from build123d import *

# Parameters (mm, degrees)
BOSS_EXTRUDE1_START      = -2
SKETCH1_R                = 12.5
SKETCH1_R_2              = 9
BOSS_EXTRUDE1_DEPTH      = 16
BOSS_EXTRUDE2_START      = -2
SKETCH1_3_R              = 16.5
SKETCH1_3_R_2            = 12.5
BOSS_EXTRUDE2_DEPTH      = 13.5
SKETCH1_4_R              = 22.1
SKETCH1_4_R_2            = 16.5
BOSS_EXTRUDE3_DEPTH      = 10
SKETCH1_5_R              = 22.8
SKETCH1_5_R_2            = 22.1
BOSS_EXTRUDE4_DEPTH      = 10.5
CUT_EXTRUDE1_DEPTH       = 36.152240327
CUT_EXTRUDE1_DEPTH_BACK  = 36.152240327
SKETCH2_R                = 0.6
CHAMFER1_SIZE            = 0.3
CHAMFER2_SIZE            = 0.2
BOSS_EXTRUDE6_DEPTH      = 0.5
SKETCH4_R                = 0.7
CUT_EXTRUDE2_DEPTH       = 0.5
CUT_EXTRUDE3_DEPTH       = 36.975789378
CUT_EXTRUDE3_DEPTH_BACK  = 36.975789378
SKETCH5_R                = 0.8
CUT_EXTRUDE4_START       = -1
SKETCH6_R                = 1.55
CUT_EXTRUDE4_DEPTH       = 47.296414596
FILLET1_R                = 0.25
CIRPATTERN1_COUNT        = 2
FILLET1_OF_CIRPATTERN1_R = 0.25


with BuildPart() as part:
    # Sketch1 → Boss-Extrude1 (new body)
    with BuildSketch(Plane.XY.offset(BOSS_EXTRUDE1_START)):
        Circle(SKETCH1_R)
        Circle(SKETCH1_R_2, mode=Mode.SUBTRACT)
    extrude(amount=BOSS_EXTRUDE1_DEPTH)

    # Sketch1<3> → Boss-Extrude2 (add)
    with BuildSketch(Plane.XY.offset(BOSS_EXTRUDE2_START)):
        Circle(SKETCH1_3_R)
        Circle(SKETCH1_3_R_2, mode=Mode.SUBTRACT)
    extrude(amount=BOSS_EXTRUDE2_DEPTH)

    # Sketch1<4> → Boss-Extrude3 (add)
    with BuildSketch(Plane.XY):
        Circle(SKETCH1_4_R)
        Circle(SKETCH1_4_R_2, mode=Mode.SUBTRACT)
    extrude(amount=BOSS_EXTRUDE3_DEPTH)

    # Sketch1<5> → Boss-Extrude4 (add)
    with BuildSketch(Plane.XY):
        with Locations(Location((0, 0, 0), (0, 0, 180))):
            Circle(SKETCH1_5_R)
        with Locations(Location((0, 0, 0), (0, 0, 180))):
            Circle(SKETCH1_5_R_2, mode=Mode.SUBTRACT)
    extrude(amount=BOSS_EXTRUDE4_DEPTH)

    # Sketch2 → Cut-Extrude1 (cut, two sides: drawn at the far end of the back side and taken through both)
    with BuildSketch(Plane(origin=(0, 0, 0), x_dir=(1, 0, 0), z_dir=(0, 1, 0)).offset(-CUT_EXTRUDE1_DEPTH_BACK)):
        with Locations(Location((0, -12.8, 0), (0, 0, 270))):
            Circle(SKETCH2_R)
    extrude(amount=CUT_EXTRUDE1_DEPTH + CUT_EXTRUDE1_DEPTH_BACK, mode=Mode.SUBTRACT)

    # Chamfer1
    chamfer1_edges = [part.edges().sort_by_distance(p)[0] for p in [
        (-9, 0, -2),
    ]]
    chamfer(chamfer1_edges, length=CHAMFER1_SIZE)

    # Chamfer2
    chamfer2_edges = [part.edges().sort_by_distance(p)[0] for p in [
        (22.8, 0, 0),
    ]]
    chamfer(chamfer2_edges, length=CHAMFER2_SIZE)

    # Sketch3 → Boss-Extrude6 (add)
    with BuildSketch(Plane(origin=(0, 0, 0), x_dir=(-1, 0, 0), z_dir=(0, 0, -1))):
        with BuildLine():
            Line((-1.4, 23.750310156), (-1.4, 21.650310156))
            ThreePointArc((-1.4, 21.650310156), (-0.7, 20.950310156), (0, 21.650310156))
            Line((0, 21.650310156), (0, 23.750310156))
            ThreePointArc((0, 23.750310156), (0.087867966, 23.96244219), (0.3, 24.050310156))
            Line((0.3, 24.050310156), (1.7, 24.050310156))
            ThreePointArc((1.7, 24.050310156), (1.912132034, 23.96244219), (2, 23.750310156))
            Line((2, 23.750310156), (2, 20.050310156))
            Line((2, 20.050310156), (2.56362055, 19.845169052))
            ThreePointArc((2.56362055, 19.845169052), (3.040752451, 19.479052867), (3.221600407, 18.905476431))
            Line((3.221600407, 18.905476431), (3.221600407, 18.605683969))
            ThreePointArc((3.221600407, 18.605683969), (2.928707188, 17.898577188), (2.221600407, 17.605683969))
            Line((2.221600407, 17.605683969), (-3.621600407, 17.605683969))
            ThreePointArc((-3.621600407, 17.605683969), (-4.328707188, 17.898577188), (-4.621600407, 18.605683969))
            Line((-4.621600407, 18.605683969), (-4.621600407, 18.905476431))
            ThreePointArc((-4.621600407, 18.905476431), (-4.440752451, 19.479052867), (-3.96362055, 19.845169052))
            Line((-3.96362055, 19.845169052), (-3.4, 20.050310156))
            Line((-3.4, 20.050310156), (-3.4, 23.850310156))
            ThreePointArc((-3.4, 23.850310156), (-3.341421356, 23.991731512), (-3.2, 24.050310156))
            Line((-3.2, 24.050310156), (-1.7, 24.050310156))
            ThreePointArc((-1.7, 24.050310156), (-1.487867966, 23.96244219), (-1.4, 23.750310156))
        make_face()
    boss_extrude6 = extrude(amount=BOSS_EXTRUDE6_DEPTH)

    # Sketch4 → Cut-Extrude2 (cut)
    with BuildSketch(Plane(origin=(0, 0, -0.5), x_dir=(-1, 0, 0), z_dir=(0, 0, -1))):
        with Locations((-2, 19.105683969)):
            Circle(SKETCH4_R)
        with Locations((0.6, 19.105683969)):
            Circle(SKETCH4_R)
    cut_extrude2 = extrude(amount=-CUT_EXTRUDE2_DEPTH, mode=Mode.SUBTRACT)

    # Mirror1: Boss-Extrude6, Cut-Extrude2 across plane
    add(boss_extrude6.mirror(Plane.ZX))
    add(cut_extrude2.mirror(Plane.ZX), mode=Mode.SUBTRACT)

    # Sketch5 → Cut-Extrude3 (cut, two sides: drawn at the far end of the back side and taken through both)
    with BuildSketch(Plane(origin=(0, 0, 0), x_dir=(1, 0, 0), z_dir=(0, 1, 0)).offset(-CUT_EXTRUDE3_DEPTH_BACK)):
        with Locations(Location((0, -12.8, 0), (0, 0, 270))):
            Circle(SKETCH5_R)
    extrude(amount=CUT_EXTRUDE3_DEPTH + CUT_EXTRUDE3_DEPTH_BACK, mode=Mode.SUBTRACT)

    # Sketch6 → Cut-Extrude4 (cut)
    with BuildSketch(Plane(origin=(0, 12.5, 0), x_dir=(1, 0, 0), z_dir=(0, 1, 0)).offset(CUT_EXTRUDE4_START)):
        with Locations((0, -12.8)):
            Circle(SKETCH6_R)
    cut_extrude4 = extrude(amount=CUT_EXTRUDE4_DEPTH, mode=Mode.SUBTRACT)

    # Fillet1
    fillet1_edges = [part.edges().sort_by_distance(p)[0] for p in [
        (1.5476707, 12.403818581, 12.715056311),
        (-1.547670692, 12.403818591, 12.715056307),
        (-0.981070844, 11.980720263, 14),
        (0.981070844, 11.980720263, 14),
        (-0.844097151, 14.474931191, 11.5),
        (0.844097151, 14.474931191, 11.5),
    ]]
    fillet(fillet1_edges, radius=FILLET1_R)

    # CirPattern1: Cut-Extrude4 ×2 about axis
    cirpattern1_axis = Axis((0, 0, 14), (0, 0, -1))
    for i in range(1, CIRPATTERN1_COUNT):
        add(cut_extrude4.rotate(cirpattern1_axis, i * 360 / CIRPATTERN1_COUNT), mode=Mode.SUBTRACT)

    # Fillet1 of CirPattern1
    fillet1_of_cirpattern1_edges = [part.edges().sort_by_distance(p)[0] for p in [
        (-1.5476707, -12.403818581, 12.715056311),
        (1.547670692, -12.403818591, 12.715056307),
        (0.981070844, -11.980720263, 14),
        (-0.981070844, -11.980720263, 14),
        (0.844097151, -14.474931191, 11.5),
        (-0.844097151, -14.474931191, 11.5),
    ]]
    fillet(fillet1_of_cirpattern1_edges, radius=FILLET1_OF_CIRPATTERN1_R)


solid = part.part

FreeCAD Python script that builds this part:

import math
import FreeCAD as App
import Part
import Sketcher

V = App.Vector
Q = App.Units.Quantity


def edges_at(feature, points):
    """Names of the edges that pass closest to the given points."""
    edges = feature.Shape.Edges
    near = lambda p: min(range(len(edges)), key=lambda i: edges[i].distToShape(Part.Vertex(*p))[0])
    return sorted({f"Edge{near(p) + 1}" for p in points})

doc = App.newDocument("Part")
body = doc.addObject("PartDesign::Body", "Body")

# Sketch on XY plane
sketch1 = doc.addObject("Sketcher::SketchObject", "Sketch")
body.addObject(sketch1)
sketch1.AttachmentSupport = (doc.XY_Plane, [""])
sketch1.MapMode = "FlatFace"
sketch1.AttachmentOffset = App.Placement(V(0, 0, -2), App.Rotation())
sketch1.addGeometry(Part.Circle(V(0, 0, 0), V(0, 0, 1), 12.5), False)
sketch1.addGeometry(Part.Circle(V(0, 0, 0), V(0, 0, 1), 9), False)
sketch1.addConstraint(Sketcher.Constraint("Coincident", 0, 3, -1, 1))
sketch1.addConstraint(Sketcher.Constraint("Coincident", 1, 3, -1, 1))
sketch1.addConstraint(Sketcher.Constraint("Diameter", 0, 25.0))
sketch1.addConstraint(Sketcher.Constraint("Diameter", 1, 18.0))
pad1 = doc.addObject("PartDesign::Pad", "Pad")
body.addObject(pad1)
pad1.Profile = sketch1
pad1.Length = 16

# Sketch on XY plane
sketch2 = doc.addObject("Sketcher::SketchObject", "Sketch001")
body.addObject(sketch2)
sketch2.AttachmentSupport = (doc.XY_Plane, [""])
sketch2.MapMode = "FlatFace"
sketch2.AttachmentOffset = App.Placement(V(0, 0, -2), App.Rotation())
sketch2.addGeometry(Part.Circle(V(0, 0, 0), V(0, 0, 1), 16.5), False)
sketch2.addGeometry(Part.Circle(V(0, 0, 0), V(0, 0, 1), 12.5), False)
sketch2.addConstraint(Sketcher.Constraint("Coincident", 0, 3, -1, 1))
sketch2.addConstraint(Sketcher.Constraint("Coincident", 1, 3, -1, 1))
sketch2.addConstraint(Sketcher.Constraint("Diameter", 0, 33.0))
sketch2.addConstraint(Sketcher.Constraint("Diameter", 1, 25.0))
pad2 = doc.addObject("PartDesign::Pad", "Pad001")
body.addObject(pad2)
pad2.Profile = sketch2
pad2.Length = 13.5

# Sketch on XY plane
sketch3 = doc.addObject("Sketcher::SketchObject", "Sketch002")
body.addObject(sketch3)
sketch3.AttachmentSupport = (doc.XY_Plane, [""])
sketch3.MapMode = "FlatFace"
sketch3.addGeometry(Part.Circle(V(0, 0, 0), V(0, 0, 1), 22.1), False)
sketch3.addGeometry(Part.Circle(V(0, 0, 0), V(0, 0, 1), 16.5), False)
sketch3.addConstraint(Sketcher.Constraint("Coincident", 0, 3, -1, 1))
sketch3.addConstraint(Sketcher.Constraint("Coincident", 1, 3, -1, 1))
sketch3.addConstraint(Sketcher.Constraint("Diameter", 1, 33.0))
sketch3.addConstraint(Sketcher.Constraint("Diameter", 0, 44.2))
pad3 = doc.addObject("PartDesign::Pad", "Pad002")
body.addObject(pad3)
pad3.Profile = sketch3
pad3.Length = 10

# Sketch on XY plane
sketch4 = doc.addObject("Sketcher::SketchObject", "Sketch003")
body.addObject(sketch4)
sketch4.AttachmentSupport = (doc.XY_Plane, [""])
sketch4.MapMode = "FlatFace"
sketch4.addGeometry(Part.Circle(V(0, 0, 0), V(0, 0, 1), 22.8), False)
sketch4.addGeometry(Part.Circle(V(0, 0, 0), V(0, 0, 1), 22.1), False)
sketch4.addConstraint(Sketcher.Constraint("Coincident", 0, 3, -1, 1))
sketch4.addConstraint(Sketcher.Constraint("Coincident", 1, 3, -1, 1))
sketch4.addConstraint(Sketcher.Constraint("Diameter", 0, 45.6))
sketch4.addConstraint(Sketcher.Constraint("Diameter", 1, 44.2))
pad4 = doc.addObject("PartDesign::Pad", "Pad003")
body.addObject(pad4)
pad4.Profile = sketch4
pad4.Length = 10.5

# Sketch on XZ plane
sketch5 = doc.addObject("Sketcher::SketchObject", "Sketch004")
body.addObject(sketch5)
sketch5.AttachmentSupport = (doc.XZ_Plane, [""])
sketch5.MapMode = "FlatFace"
sketch5.addGeometry(Part.Circle(V(0, 12.8, 0), V(0, 0, 1), 0.6), False)
sketch5.addConstraint(Sketcher.Constraint("PointOnObject", 0, 3, -2))
sketch5.addConstraint(Sketcher.Constraint("Diameter", 0, 1.2))
sketch5.addConstraint(Sketcher.Constraint("DistanceY", -1, 1, 0, 3, 12.8))
pocket1 = doc.addObject("PartDesign::Pocket", "Pocket")
body.addObject(pocket1)
pocket1.Profile = sketch5
pocket1.Type = "ThroughAll"
pocket1.Midplane = True
doc.recompute()

chamfer = doc.addObject("PartDesign::Chamfer", "Chamfer")
body.addObject(chamfer)
chamfer.Base = (pocket1, edges_at(pocket1, [(-9, 0, -2)]))
chamfer.Size = 0.3
doc.recompute()

chamfer2 = doc.addObject("PartDesign::Chamfer", "Chamfer001")
body.addObject(chamfer2)
chamfer2.Base = (chamfer, edges_at(chamfer, [(22.8, 0, 0)]))
chamfer2.Size = 0.2

# Sketch on XY plane
sketch6 = doc.addObject("Sketcher::SketchObject", "Sketch005")
body.addObject(sketch6)
sketch6.AttachmentSupport = (doc.XY_Plane, [""])
sketch6.MapMode = "FlatFace"
sketch6.addGeometry(Part.LineSegment(V(1.4, 21.65031, 0), V(1.4, 23.75031, 0)), False)
sketch6.addGeometry(Part.ArcOfCircle(Part.Circle(V(1.7, 23.75031, 0), V(0, 0, 1), 0.3), math.radians(90), math.radians(180)), False)
sketch6.addGeometry(Part.LineSegment(V(1.7, 24.05031, 0), V(3.2, 24.05031, 0)), False)
sketch6.addGeometry(Part.ArcOfCircle(Part.Circle(V(3.2, 23.85031, 0), V(0, 0, 1), 0.2), math.radians(0), math.radians(90)), False)
sketch6.addGeometry(Part.LineSegment(V(3.4, 23.85031, 0), V(3.4, 20.05031, 0)), False)
sketch6.addGeometry(Part.LineSegment(V(3.4, 20.05031, 0), V(3.963621, 19.845169, 0)), False)
sketch6.addGeometry(Part.ArcOfCircle(Part.Circle(V(3.6216, 18.905476, 0), V(0, 0, 1), 1), math.radians(0), math.radians(70)), False)
sketch6.addGeometry(Part.LineSegment(V(4.6216, 18.905476, 0), V(4.6216, 18.605684, 0)), False)
sketch6.addGeometry(Part.ArcOfCircle(Part.Circle(V(3.6216, 18.605684, 0), V(0, 0, 1), 1), math.radians(-90), math.radians(0)), False)
sketch6.addGeometry(Part.LineSegment(V(3.6216, 17.605684, 0), V(-2.2216, 17.605684, 0)), False)
sketch6.addGeometry(Part.ArcOfCircle(Part.Circle(V(-2.2216, 18.605684, 0), V(0, 0, 1), 1), math.radians(-180), math.radians(-90)), False)
sketch6.addGeometry(Part.LineSegment(V(-3.2216, 18.605684, 0), V(-3.2216, 18.905476, 0)), False)
sketch6.addGeometry(Part.ArcOfCircle(Part.Circle(V(-2.2216, 18.905476, 0), V(0, 0, 1), 1), math.radians(110), math.radians(180)), False)
sketch6.addGeometry(Part.LineSegment(V(-2.563621, 19.845169, 0), V(-2, 20.05031, 0)), False)
sketch6.addGeometry(Part.LineSegment(V(-2, 20.05031, 0), V(-2, 23.75031, 0)), False)
sketch6.addGeometry(Part.ArcOfCircle(Part.Circle(V(-1.7, 23.75031, 0), V(0, 0, 1), 0.3), math.radians(90), math.radians(180)), False)
sketch6.addGeometry(Part.LineSegment(V(-1.7, 24.05031, 0), V(-0.3, 24.05031, 0)), False)
sketch6.addGeometry(Part.ArcOfCircle(Part.Circle(V(-0.3, 23.75031, 0), V(0, 0, 1), 0.3), math.radians(0), math.radians(90)), False)
sketch6.addGeometry(Part.LineSegment(V(0, 23.75031, 0), V(0, 21.65031, 0)), False)
sketch6.addGeometry(Part.ArcOfCircle(Part.Circle(V(0.7, 21.65031, 0), V(0, 0, 1), 0.7), math.radians(180), math.radians(360)), False)
sketch6.addConstraint(Sketcher.Constraint("Tangent", 0, 2, 1, 2))
sketch6.addConstraint(Sketcher.Constraint("Tangent", 1, 1, 2, 1))
sketch6.addConstraint(Sketcher.Constraint("Tangent", 2, 2, 3, 2))
sketch6.addConstraint(Sketcher.Constraint("Tangent", 3, 1, 4, 1))
sketch6.addConstraint(Sketcher.Constraint("Coincident", 4, 2, 5, 1))
sketch6.addConstraint(Sketcher.Constraint("Tangent", 5, 2, 6, 2))
sketch6.addConstraint(Sketcher.Constraint("Tangent", 6, 1, 7, 1))
sketch6.addConstraint(Sketcher.Constraint("Tangent", 7, 2, 8, 2))
sketch6.addConstraint(Sketcher.Constraint("Tangent", 8, 1, 9, 1))
sketch6.addConstraint(Sketcher.Constraint("Tangent", 9, 2, 10, 2))
sketch6.addConstraint(Sketcher.Constraint("Tangent", 10, 1, 11, 1))
sketch6.addConstraint(Sketcher.Constraint("Tangent", 11, 2, 12, 2))
sketch6.addConstraint(Sketcher.Constraint("Tangent", 12, 1, 13, 1))
sketch6.addConstraint(Sketcher.Constraint("Coincident", 13, 2, 14, 1))
sketch6.addConstraint(Sketcher.Constraint("Tangent", 14, 2, 15, 2))
sketch6.addConstraint(Sketcher.Constraint("Tangent", 15, 1, 16, 1))
sketch6.addConstraint(Sketcher.Constraint("Tangent", 16, 2, 17, 2))
sketch6.addConstraint(Sketcher.Constraint("Tangent", 17, 1, 18, 1))
sketch6.addConstraint(Sketcher.Constraint("Tangent", 18, 2, 19, 1))
sketch6.addConstraint(Sketcher.Constraint("Tangent", 19, 2, 0, 1))
sketch6.addConstraint(Sketcher.Constraint("Vertical", 0))
sketch6.addConstraint(Sketcher.Constraint("Horizontal", 2))
sketch6.addConstraint(Sketcher.Constraint("Vertical", 4))
sketch6.addConstraint(Sketcher.Constraint("Vertical", 7))
sketch6.addConstraint(Sketcher.Constraint("Horizontal", 9))
sketch6.addConstraint(Sketcher.Constraint("Vertical", 11))
sketch6.addConstraint(Sketcher.Constraint("Vertical", 14))
sketch6.addConstraint(Sketcher.Constraint("Horizontal", 16))
sketch6.addConstraint(Sketcher.Constraint("Vertical", 18))
sketch6.addConstraint(Sketcher.Constraint("Equal", 6, 8))
sketch6.addConstraint(Sketcher.Constraint("Equal", 8, 10))
sketch6.addConstraint(Sketcher.Constraint("Equal", 10, 12))
sketch6.addConstraint(Sketcher.Constraint("Equal", 1, 15))
sketch6.addConstraint(Sketcher.Constraint("Equal", 15, 17))
sketch6.addConstraint(Sketcher.Constraint("Symmetric", 1, 3, 15, 3, -2))
sketch6.addConstraint(Sketcher.Constraint("PointOnObject", 17, 1, -2))
sketch6.addConstraint(Sketcher.Constraint("Horizontal", 6, 3, 12, 3))
sketch6.addConstraint(Sketcher.Constraint("Horizontal", 5, 2, 12, 1))
sketch6.addConstraint(Sketcher.Constraint("Horizontal", 4, 2, 13, 2))
sketch6.addConstraint(Sketcher.Constraint("Radius", 6, 1.0))
sketch6.addConstraint(Sketcher.Constraint("Radius", 1, 0.3))
sketch6.addConstraint(Sketcher.Constraint("Radius", 3, 0.2))
sketch6.addConstraint(Sketcher.Constraint("Radius", 19, 0.7))
sketch6.addConstraint(Sketcher.Constraint("Angle", 5, Q("-20 deg")))
sketch6.addConstraint(Sketcher.Constraint("DistanceX", 2, 1, 2, 2, 1.5))
sketch6.addConstraint(Sketcher.Constraint("DistanceY", 0, 1, 0, 2, 2.1))
sketch6.addConstraint(Sketcher.Constraint("DistanceY", 4, 2, 4, 1, 3.8))
sketch6.addConstraint(Sketcher.Constraint("DistanceX", 9, 2, 9, 1, 5.843201))
sketch6.addConstraint(Sketcher.Constraint("DistanceY", 7, 2, 7, 1, 0.299792))
sketch6.addConstraint(Sketcher.Constraint("DistanceY", -1, 1, 1, 3, 23.75031))
pad5 = doc.addObject("PartDesign::Pad", "Pad004")
body.addObject(pad5)
pad5.Profile = sketch6
pad5.Length = 0.5
pad5.Reversed = True

# Sketch on XY plane
sketch7 = doc.addObject("Sketcher::SketchObject", "Sketch006")
body.addObject(sketch7)
sketch7.AttachmentSupport = (doc.XY_Plane, [""])
sketch7.MapMode = "FlatFace"
sketch7.AttachmentOffset = App.Placement(V(0, 0, -0.5), App.Rotation())
sketch7.addGeometry(Part.Circle(V(2, 19.105684, 0), V(0, 0, 1), 0.7), False)
sketch7.addGeometry(Part.Circle(V(-0.6, 19.105684, 0), V(0, 0, 1), 0.7), False)
sketch7.addConstraint(Sketcher.Constraint("Equal", 0, 1))
sketch7.addConstraint(Sketcher.Constraint("Horizontal", 0, 3, 1, 3))
sketch7.addConstraint(Sketcher.Constraint("Diameter", 0, 1.4))
sketch7.addConstraint(Sketcher.Constraint("DistanceX", -1, 1, 0, 3, 2.0))
sketch7.addConstraint(Sketcher.Constraint("DistanceX", 1, 3, -1, 1, 0.6))
sketch7.addConstraint(Sketcher.Constraint("DistanceY", -1, 1, 0, 3, 19.105684))
pocket2 = doc.addObject("PartDesign::Pocket", "Pocket001")
body.addObject(pocket2)
pocket2.Profile = sketch7
pocket2.Length = 0.5
pocket2.Reversed = True
doc.recompute()

mirrored = doc.addObject("PartDesign::Mirrored", "Mirrored")
body.addObject(mirrored)
mirrored.Originals = [pad5, pocket2]
mirrored.MirrorPlane = (doc.XZ_Plane, [""])
body.Tip = mirrored

# Sketch on XZ plane
sketch8 = doc.addObject("Sketcher::SketchObject", "Sketch007")
body.addObject(sketch8)
sketch8.AttachmentSupport = (doc.XZ_Plane, [""])
sketch8.MapMode = "FlatFace"
sketch8.addGeometry(Part.Circle(V(0, 12.8, 0), V(0, 0, 1), 0.8), False)
sketch8.addConstraint(Sketcher.Constraint("PointOnObject", 0, 3, -2))
sketch8.addConstraint(Sketcher.Constraint("Diameter", 0, 1.6))
sketch8.addConstraint(Sketcher.Constraint("DistanceY", -1, 1, 0, 3, 12.8))
pocket3 = doc.addObject("PartDesign::Pocket", "Pocket002")
body.addObject(pocket3)
pocket3.Profile = sketch8
pocket3.Type = "ThroughAll"
pocket3.Midplane = True

# Sketch on XZ plane
sketch9 = doc.addObject("Sketcher::SketchObject", "Sketch008")
body.addObject(sketch9)
sketch9.AttachmentSupport = (doc.XZ_Plane, [""])
sketch9.MapMode = "FlatFace"
sketch9.AttachmentOffset = App.Placement(V(0, 0, -11.5), App.Rotation())
sketch9.addGeometry(Part.Circle(V(0, 12.8, 0), V(0, 0, 1), 1.55), False)
sketch9.addConstraint(Sketcher.Constraint("PointOnObject", 0, 3, -2))
sketch9.addConstraint(Sketcher.Constraint("Diameter", 0, 3.1))
sketch9.addConstraint(Sketcher.Constraint("DistanceY", -1, 1, 0, 3, 12.8))
pocket4 = doc.addObject("PartDesign::Pocket", "Pocket003")
body.addObject(pocket4)
pocket4.Profile = sketch9
pocket4.Length = 47.296415
doc.recompute()

fillet = doc.addObject("PartDesign::Fillet", "Fillet")
body.addObject(fillet)
fillet.Base = (pocket4, edges_at(pocket4, [
    (1.548, 12.404, 12.715),
    (-1.548, 12.404, 12.715),
    (-0.981, 11.981, 14),
    (0.981, 11.981, 14),
    (-0.844, 14.475, 11.5),
    (0.844, 14.475, 11.5),
]))
fillet.Radius = 0.25
doc.recompute()

polarpattern = doc.addObject("PartDesign::PolarPattern", "PolarPattern")
body.addObject(polarpattern)
polarpattern.Originals = [pocket4]
polarpattern.Axis = (doc.Z_Axis, [""])
polarpattern.Angle = 360
polarpattern.Occurrences = 2
body.Tip = polarpattern
doc.recompute()

fillet2 = doc.addObject("PartDesign::Fillet", "Fillet001")
body.addObject(fillet2)
fillet2.Base = (polarpattern, edges_at(polarpattern, [
    (-1.548, -12.404, 12.715),
    (1.548, -12.404, 12.715),
    (0.981, -11.981, 14),
    (-0.981, -11.981, 14),
    (0.844, -14.475, 11.5),
    (-0.844, -14.475, 11.5),
]))
fillet2.Radius = 0.25

doc.recompute()
